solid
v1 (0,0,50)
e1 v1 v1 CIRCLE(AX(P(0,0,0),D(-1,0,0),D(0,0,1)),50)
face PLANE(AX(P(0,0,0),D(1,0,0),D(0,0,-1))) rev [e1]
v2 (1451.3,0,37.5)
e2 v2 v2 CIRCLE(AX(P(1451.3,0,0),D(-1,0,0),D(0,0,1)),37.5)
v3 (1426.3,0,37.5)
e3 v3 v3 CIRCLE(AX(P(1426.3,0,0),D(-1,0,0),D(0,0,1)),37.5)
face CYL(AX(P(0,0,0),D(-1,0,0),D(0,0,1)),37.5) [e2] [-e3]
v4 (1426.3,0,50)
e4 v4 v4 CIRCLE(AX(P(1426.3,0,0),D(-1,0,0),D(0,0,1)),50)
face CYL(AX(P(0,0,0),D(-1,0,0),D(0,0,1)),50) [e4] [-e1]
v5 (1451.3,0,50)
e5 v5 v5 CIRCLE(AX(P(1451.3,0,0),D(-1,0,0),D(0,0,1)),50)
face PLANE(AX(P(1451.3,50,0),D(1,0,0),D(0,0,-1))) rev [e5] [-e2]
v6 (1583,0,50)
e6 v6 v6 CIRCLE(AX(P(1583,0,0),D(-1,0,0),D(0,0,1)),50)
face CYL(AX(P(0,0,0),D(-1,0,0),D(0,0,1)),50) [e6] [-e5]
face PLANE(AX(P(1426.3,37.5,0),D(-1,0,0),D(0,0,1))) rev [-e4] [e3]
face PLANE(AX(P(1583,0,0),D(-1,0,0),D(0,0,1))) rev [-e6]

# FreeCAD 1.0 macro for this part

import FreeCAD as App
import Part
import Sketcher

V = App.Vector
Q = App.Units.Quantity

doc = App.newDocument("Part")
body = doc.addObject("PartDesign::Body", "Body")

# Sketch on XY plane
sketch1 = body.newObject("Sketcher::SketchObject", "Sketch")
sketch1.AttachmentSupport = (doc.getObject("XY_Plane"), [""])
sketch1.MapMode = "FlatFace"
sketch1.addGeometry([
    Part.LineSegment(V(0, 50, 0), V(0, 0, 0)),  # 0
    Part.LineSegment(V(0, 0, 0), V(1583, 0, 0)),  # 1
    Part.LineSegment(V(1583, 0, 0), V(1583, 50, 0)),  # 2
    Part.LineSegment(V(1583, 50, 0), V(1451, 50, 0)),  # 3
    Part.LineSegment(V(1451, 50, 0), V(1451, 38, 0)),  # 4
    Part.LineSegment(V(1451, 38, 0), V(1426, 38, 0)),  # 5
    Part.LineSegment(V(1426, 38, 0), V(1426, 50, 0)),  # 6
    Part.LineSegment(V(1426, 50, 0), V(0, 50, 0)),  # 7
], False)
sketch1.addConstraint([
    Sketcher.Constraint("Coincident", 0, 2, 1, 1),
    Sketcher.Constraint("Coincident", 1, 2, 2, 1),
    Sketcher.Constraint("Coincident", 2, 2, 3, 1),
    Sketcher.Constraint("Coincident", 3, 2, 4, 1),
    Sketcher.Constraint("Coincident", 4, 2, 5, 1),
    Sketcher.Constraint("Coincident", 5, 2, 6, 1),
    Sketcher.Constraint("Coincident", 6, 2, 7, 1),
    Sketcher.Constraint("Coincident", 7, 2, 0, 1),
    Sketcher.Constraint("Vertical", 0),
    Sketcher.Constraint("Horizontal", 1),
    Sketcher.Constraint("Vertical", 2),
    Sketcher.Constraint("Horizontal", 3),
    Sketcher.Constraint("Vertical", 4),
    Sketcher.Constraint("Horizontal", 5),
    Sketcher.Constraint("Vertical", 6),
    Sketcher.Constraint("Horizontal", 7),
    Sketcher.Constraint("Coincident", 0, 2, -1, 1),
    Sketcher.Constraint("Horizontal", 3, 2, 6, 2),
    Sketcher.Constraint("DistanceX", 1, 1, 1, 2, Q("1583 mm")),
    Sketcher.Constraint("DistanceX", 5, 2, 5, 1, Q("25 mm")),
    Sketcher.Constraint("DistanceY", 0, 2, 0, 1, Q("50 mm")),
    Sketcher.Constraint("DistanceX", 3, 2, 3, 1, Q("131.7 mm")),
    Sketcher.Constraint("DistanceY", 4, 2, 4, 1, Q("12.5 mm")),
])
revolution = body.newObject("PartDesign::Revolution", "Revolution")
revolution.Profile = sketch1
revolution.ReferenceAxis = (sketch1, ["H_Axis"])
revolution.Angle = 360

doc.recompute()
